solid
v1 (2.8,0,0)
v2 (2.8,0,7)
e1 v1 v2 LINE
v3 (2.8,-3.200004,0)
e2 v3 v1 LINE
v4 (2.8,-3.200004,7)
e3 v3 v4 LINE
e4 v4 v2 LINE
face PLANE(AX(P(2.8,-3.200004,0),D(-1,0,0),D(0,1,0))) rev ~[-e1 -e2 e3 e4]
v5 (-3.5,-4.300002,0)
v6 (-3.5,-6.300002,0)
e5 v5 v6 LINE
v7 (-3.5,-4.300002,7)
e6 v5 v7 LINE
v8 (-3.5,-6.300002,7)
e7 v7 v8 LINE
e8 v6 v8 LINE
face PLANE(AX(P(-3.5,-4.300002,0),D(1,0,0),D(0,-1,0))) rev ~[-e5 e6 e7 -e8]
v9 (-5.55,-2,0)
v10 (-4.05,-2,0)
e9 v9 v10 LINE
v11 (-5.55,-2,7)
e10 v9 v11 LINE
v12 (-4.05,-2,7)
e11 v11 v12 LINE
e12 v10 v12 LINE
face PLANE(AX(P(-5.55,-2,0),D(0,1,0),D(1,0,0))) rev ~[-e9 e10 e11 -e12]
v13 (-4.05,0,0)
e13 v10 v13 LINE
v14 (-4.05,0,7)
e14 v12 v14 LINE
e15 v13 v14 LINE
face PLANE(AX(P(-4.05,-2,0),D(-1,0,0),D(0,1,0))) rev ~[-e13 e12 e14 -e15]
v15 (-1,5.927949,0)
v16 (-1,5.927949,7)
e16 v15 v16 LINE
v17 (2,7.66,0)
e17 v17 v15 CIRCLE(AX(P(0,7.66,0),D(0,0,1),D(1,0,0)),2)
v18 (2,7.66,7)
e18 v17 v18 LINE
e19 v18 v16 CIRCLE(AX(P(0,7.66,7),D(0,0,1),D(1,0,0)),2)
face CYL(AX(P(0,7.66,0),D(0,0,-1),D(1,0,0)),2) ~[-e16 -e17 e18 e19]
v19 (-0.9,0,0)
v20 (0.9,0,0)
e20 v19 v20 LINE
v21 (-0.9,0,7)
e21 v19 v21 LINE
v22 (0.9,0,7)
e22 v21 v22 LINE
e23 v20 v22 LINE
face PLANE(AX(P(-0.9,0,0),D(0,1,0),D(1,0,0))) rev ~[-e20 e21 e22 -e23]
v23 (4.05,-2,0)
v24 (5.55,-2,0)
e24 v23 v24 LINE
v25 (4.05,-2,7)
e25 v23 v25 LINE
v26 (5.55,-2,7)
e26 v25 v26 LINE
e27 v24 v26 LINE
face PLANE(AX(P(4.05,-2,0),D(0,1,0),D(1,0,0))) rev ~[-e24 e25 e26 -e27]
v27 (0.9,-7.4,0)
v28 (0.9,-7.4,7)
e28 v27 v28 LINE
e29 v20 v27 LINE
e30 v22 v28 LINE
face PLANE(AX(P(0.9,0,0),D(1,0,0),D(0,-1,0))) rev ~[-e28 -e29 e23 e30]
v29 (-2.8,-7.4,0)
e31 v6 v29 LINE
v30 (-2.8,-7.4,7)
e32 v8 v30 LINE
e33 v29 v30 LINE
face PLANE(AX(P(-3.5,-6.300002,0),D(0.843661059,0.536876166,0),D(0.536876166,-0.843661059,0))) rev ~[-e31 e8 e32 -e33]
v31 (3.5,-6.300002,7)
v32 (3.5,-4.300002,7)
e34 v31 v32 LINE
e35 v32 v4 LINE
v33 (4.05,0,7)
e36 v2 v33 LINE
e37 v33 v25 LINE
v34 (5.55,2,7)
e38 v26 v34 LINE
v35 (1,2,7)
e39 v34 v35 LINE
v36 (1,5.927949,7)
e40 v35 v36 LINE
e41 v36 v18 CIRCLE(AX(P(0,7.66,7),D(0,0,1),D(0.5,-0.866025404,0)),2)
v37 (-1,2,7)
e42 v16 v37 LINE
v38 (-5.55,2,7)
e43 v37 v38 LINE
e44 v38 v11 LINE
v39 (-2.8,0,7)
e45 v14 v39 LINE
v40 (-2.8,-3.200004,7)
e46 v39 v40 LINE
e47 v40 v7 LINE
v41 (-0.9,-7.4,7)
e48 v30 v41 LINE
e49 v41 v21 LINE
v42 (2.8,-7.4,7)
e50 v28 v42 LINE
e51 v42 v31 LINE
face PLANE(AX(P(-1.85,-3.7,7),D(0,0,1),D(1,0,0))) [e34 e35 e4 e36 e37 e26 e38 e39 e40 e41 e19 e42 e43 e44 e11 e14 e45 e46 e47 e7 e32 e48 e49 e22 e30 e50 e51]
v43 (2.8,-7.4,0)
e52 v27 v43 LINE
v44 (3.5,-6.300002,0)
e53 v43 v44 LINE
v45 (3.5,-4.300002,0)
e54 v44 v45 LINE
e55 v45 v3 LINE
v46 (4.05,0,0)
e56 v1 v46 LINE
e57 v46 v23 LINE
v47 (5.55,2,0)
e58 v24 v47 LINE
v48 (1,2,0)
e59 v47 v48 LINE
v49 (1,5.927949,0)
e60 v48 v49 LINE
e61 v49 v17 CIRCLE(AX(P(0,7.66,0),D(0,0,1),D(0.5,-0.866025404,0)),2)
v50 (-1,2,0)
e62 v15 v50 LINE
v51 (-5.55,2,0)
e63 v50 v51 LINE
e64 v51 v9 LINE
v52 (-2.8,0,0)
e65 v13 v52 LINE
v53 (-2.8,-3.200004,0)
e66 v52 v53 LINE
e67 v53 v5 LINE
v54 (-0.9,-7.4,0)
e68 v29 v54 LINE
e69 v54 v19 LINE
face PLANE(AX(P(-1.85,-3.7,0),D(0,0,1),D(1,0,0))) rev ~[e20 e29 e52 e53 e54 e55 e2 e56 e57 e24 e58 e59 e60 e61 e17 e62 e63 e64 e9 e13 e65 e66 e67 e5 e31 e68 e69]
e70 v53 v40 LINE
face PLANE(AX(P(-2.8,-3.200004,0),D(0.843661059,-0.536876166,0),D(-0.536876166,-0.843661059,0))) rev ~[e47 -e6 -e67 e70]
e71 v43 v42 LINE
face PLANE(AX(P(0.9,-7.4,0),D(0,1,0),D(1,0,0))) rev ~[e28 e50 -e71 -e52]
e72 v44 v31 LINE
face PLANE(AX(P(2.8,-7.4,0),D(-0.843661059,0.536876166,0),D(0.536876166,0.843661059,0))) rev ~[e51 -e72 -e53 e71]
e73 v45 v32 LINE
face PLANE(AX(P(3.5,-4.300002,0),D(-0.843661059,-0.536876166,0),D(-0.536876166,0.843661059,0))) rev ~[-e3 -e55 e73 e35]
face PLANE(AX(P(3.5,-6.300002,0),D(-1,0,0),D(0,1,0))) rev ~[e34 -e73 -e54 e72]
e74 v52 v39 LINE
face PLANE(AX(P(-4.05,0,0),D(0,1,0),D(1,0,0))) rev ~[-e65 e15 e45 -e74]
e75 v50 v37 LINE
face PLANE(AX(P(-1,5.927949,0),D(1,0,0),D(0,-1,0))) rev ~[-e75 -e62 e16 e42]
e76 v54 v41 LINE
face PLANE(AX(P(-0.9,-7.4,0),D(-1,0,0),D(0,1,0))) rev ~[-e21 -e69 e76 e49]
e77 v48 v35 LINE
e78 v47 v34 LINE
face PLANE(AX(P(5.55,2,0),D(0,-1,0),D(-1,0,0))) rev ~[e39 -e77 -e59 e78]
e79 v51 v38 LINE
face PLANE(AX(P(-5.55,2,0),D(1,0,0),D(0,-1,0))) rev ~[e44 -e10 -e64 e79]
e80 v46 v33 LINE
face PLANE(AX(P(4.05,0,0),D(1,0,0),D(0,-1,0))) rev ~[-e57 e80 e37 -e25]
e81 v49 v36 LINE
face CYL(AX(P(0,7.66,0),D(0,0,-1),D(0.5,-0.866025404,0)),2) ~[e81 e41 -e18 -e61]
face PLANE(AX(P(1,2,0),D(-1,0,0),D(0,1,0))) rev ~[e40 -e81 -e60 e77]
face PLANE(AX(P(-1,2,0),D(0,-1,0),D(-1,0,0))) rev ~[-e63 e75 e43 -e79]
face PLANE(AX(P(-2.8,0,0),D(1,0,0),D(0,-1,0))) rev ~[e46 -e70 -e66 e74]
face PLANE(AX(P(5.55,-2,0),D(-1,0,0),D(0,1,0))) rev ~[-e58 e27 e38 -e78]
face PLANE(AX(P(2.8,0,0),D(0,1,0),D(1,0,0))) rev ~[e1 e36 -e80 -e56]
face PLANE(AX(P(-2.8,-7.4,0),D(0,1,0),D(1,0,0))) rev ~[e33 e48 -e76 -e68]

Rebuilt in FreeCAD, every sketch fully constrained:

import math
import FreeCAD as App
import Part
import Sketcher
Q = App.Units.Quantity

doc = App.newDocument("Part")
body = doc.addObject("PartDesign::Body", "Body")

sketch1 = doc.addObject("Sketcher::SketchObject", "Sketch")
body.addObject(sketch1)
sketch1.AttachmentSupport = (doc.XY_Plane, [""])
sketch1.MapMode = "FlatFace"
sketch1.addGeometry(Part.LineSegment(App.Vector(-0.9, -7.4, 0), App.Vector(-0.9, 0, 0)), False)
sketch1.addGeometry(Part.LineSegment(App.Vector(-0.9, 0, 0), App.Vector(0.9, 0, 0)), False)
sketch1.addGeometry(Part.LineSegment(App.Vector(0.9, 0, 0), App.Vector(0.9, -7.4, 0)), False)
sketch1.addGeometry(Part.LineSegment(App.Vector(0.9, -7.4, 0), App.Vector(2.8, -7.4, 0)), False)
sketch1.addGeometry(Part.LineSegment(App.Vector(2.8, -7.4, 0), App.Vector(3.5, -6.300002, 0)), False)
sketch1.addGeometry(Part.LineSegment(App.Vector(3.5, -6.300002, 0), App.Vector(3.5, -4.300002, 0)), False)
sketch1.addGeometry(Part.LineSegment(App.Vector(3.5, -4.300002, 0), App.Vector(2.8, -3.200004, 0)), False)
sketch1.addGeometry(Part.LineSegment(App.Vector(2.8, -3.200004, 0), App.Vector(2.8, 0, 0)), False)
sketch1.addGeometry(Part.LineSegment(App.Vector(2.8, 0, 0), App.Vector(4.05, 0, 0)), False)
sketch1.addGeometry(Part.LineSegment(App.Vector(4.05, 0, 0), App.Vector(4.05, -2, 0)), False)
sketch1.addGeometry(Part.LineSegment(App.Vector(4.05, -2, 0), App.Vector(5.55, -2, 0)), False)
sketch1.addGeometry(Part.LineSegment(App.Vector(5.55, -2, 0), App.Vector(5.55, 2, 0)), False)
sketch1.addGeometry(Part.LineSegment(App.Vector(5.55, 2, 0), App.Vector(1, 2, 0)), False)
sketch1.addGeometry(Part.LineSegment(App.Vector(1, 2, 0), App.Vector(1, 5.927949, 0)), False)
sketch1.addGeometry(Part.ArcOfCircle(Part.Circle(App.Vector(0, 7.66, 0), App.Vector(0, 0, 1), 2), math.radians(-60), math.radians(0)), False)
sketch1.addGeometry(Part.ArcOfCircle(Part.Circle(App.Vector(0, 7.66, 0), App.Vector(0, 0, 1), 2), math.radians(0), math.radians(240)), False)
sketch1.addGeometry(Part.LineSegment(App.Vector(-1, 5.927949, 0), App.Vector(-1, 2, 0)), False)
sketch1.addGeometry(Part.LineSegment(App.Vector(-1, 2, 0), App.Vector(-5.55, 2, 0)), False)
sketch1.addGeometry(Part.LineSegment(App.Vector(-5.55, 2, 0), App.Vector(-5.55, -2, 0)), False)
sketch1.addGeometry(Part.LineSegment(App.Vector(-5.55, -2, 0), App.Vector(-4.05, -2, 0)), False)
sketch1.addGeometry(Part.LineSegment(App.Vector(-4.05, -2, 0), App.Vector(-4.05, 0, 0)), False)
sketch1.addGeometry(Part.LineSegment(App.Vector(-4.05, 0, 0), App.Vector(-2.8, 0, 0)), False)
sketch1.addGeometry(Part.LineSegment(App.Vector(-2.8, 0, 0), App.Vector(-2.8, -3.200004, 0)), False)
sketch1.addGeometry(Part.LineSegment(App.Vector(-2.8, -3.200004, 0), App.Vector(-3.5, -4.300002, 0)), False)
sketch1.addGeometry(Part.LineSegment(App.Vector(-3.5, -4.300002, 0), App.Vector(-3.5, -6.300002, 0)), False)
sketch1.addGeometry(Part.LineSegment(App.Vector(-3.5, -6.300002, 0), App.Vector(-2.8, -7.4, 0)), False)
sketch1.addGeometry(Part.LineSegment(App.Vector(-2.8, -7.4, 0), App.Vector(-0.9, -7.4, 0)), False)
sketch1.addConstraint(Sketcher.Constraint("Coincident", 0, 2, 1, 1))
sketch1.addConstraint(Sketcher.Constraint("Coincident", 1, 2, 2, 1))
sketch1.addConstraint(Sketcher.Constraint("Coincident", 2, 2, 3, 1))
sketch1.addConstraint(Sketcher.Constraint("Coincident", 3, 2, 4, 1))
sketch1.addConstraint(Sketcher.Constraint("Coincident", 4, 2, 5, 1))
sketch1.addConstraint(Sketcher.Constraint("Coincident", 5, 2, 6, 1))
sketch1.addConstraint(Sketcher.Constraint("Coincident", 6, 2, 7, 1))
sketch1.addConstraint(Sketcher.Constraint("Coincident", 7, 2, 8, 1))
sketch1.addConstraint(Sketcher.Constraint("Coincident", 8, 2, 9, 1))
sketch1.addConstraint(Sketcher.Constraint("Coincident", 9, 2, 10, 1))
sketch1.addConstraint(Sketcher.Constraint("Coincident", 10, 2, 11, 1))
sketch1.addConstraint(Sketcher.Constraint("Coincident", 11, 2, 12, 1))
sketch1.addConstraint(Sketcher.Constraint("Coincident", 12, 2, 13, 1))
sketch1.addConstraint(Sketcher.Constraint("Coincident", 13, 2, 14, 1))
sketch1.addConstraint(Sketcher.Constraint("Tangent", 14, 2, 15, 1))
sketch1.addConstraint(Sketcher.Constraint("Coincident", 15, 2, 16, 1))
sketch1.addConstraint(Sketcher.Constraint("Coincident", 16, 2, 17, 1))
sketch1.addConstraint(Sketcher.Constraint("Coincident", 17, 2, 18, 1))
sketch1.addConstraint(Sketcher.Constraint("Coincident", 18, 2, 19, 1))
sketch1.addConstraint(Sketcher.Constraint("Coincident", 19, 2, 20, 1))
sketch1.addConstraint(Sketcher.Constraint("Coincident", 20, 2, 21, 1))
sketch1.addConstraint(Sketcher.Constraint("Coincident", 21, 2, 22, 1))
sketch1.addConstraint(Sketcher.Constraint("Coincident", 22, 2, 23, 1))
sketch1.addConstraint(Sketcher.Constraint("Coincident", 23, 2, 24, 1))
sketch1.addConstraint(Sketcher.Constraint("Coincident", 24, 2, 25, 1))
sketch1.addConstraint(Sketcher.Constraint("Coincident", 25, 2, 26, 1))
sketch1.addConstraint(Sketcher.Constraint("Coincident", 26, 2, 0, 1))
sketch1.addConstraint(Sketcher.Constraint("Vertical", 0))
sketch1.addConstraint(Sketcher.Constraint("Horizontal", 1))
sketch1.addConstraint(Sketcher.Constraint("Vertical", 2))
sketch1.addConstraint(Sketcher.Constraint("Horizontal", 3))
sketch1.addConstraint(Sketcher.Constraint("Vertical", 5))
sketch1.addConstraint(Sketcher.Constraint("Vertical", 7))
sketch1.addConstraint(Sketcher.Constraint("Horizontal", 8))
sketch1.addConstraint(Sketcher.Constraint("Vertical", 9))
sketch1.addConstraint(Sketcher.Constraint("Horizontal", 10))
sketch1.addConstraint(Sketcher.Constraint("Vertical", 11))
sketch1.addConstraint(Sketcher.Constraint("Horizontal", 12))
sketch1.addConstraint(Sketcher.Constraint("Vertical", 13))
sketch1.addConstraint(Sketcher.Constraint("Vertical", 16))
sketch1.addConstraint(Sketcher.Constraint("Horizontal", 17))
sketch1.addConstraint(Sketcher.Constraint("Vertical", 18))
sketch1.addConstraint(Sketcher.Constraint("Horizontal", 19))
sketch1.addConstraint(Sketcher.Constraint("Vertical", 20))
sketch1.addConstraint(Sketcher.Constraint("Horizontal", 21))
sketch1.addConstraint(Sketcher.Constraint("Vertical", 22))
sketch1.addConstraint(Sketcher.Constraint("Vertical", 24))
sketch1.addConstraint(Sketcher.Constraint("Horizontal", 26))
sketch1.addConstraint(Sketcher.Constraint("Equal", 14, 15))
sketch1.addConstraint(Sketcher.Constraint("Symmetric", 0, 2, 1, 2, -1, 1))
sketch1.addConstraint(Sketcher.Constraint("Symmetric", 10, 2, 17, 2, -1, 1))
sketch1.addConstraint(Sketcher.Constraint("Symmetric", 8, 2, 20, 2, -1, 1))
sketch1.addConstraint(Sketcher.Constraint("Symmetric", 13, 2, 15, 2, -2))
sketch1.addConstraint(Sketcher.Constraint("Symmetric", 7, 2, 21, 2, -2))
sketch1.addConstraint(Sketcher.Constraint("Symmetric", 5, 2, 23, 2, -2))
sketch1.addConstraint(Sketcher.Constraint("Symmetric", 3, 2, 25, 2, -2))
sketch1.addConstraint(Sketcher.Constraint("Parallel", 4, 23))
sketch1.addConstraint(Sketcher.Constraint("Parallel", 6, 25))
sketch1.addConstraint(Sketcher.Constraint("Horizontal", 15, 3, 14, 2))
sketch1.addConstraint(Sketcher.Constraint("Horizontal", 12, 2, 16, 2))
sketch1.addConstraint(Sketcher.Constraint("Horizontal", 10, 2, 18, 2))
sketch1.addConstraint(Sketcher.Constraint("Horizontal", 6, 2, 22, 2))
sketch1.addConstraint(Sketcher.Constraint("Vertical", 3, 2, 6, 2))
sketch1.addConstraint(Sketcher.Constraint("Equal", 5, 9))
sketch1.addConstraint(Sketcher.Constraint("Radius", 14, Q("2 mm")))
sketch1.addConstraint(Sketcher.Constraint("DistanceY", 5, 1, 5, 2, Q("2 mm")))
sketch1.addConstraint(Sketcher.Constraint("DistanceX", 1, 1, 1, 2, Q("1.8 mm")))
sketch1.addConstraint(Sketcher.Constraint("DistanceX", 3, 1, 3, 2, Q("1.9 mm")))
sketch1.addConstraint(Sketcher.Constraint("DistanceX", 10, 1, 10, 2, Q("1.5 mm")))
sketch1.addConstraint(Sketcher.Constraint("DistanceY", 0, 1, 0, 2, Q("7.4 mm")))
sketch1.addConstraint(Sketcher.Constraint("DistanceX", -1, 1, 12, 2, Q("1 mm")))
sketch1.addConstraint(Sketcher.Constraint("DistanceX", 8, 1, 8, 2, Q("1.25 mm")))
sketch1.addConstraint(Sketcher.Constraint("DistanceX", -1, 1, 4, 2, Q("3.5 mm")))
sketch1.addConstraint(Sketcher.Constraint("DistanceY", 4, 2, -1, 1, Q("6.300002 mm")))
sketch1.addConstraint(Sketcher.Constraint("DistanceY", -1, 1, 14, 3, Q("7.66 mm")))
pad1 = doc.addObject("PartDesign::Pad", "Pad")
body.addObject(pad1)
pad1.Profile = sketch1
pad1.Length = 7

doc.recompute()
